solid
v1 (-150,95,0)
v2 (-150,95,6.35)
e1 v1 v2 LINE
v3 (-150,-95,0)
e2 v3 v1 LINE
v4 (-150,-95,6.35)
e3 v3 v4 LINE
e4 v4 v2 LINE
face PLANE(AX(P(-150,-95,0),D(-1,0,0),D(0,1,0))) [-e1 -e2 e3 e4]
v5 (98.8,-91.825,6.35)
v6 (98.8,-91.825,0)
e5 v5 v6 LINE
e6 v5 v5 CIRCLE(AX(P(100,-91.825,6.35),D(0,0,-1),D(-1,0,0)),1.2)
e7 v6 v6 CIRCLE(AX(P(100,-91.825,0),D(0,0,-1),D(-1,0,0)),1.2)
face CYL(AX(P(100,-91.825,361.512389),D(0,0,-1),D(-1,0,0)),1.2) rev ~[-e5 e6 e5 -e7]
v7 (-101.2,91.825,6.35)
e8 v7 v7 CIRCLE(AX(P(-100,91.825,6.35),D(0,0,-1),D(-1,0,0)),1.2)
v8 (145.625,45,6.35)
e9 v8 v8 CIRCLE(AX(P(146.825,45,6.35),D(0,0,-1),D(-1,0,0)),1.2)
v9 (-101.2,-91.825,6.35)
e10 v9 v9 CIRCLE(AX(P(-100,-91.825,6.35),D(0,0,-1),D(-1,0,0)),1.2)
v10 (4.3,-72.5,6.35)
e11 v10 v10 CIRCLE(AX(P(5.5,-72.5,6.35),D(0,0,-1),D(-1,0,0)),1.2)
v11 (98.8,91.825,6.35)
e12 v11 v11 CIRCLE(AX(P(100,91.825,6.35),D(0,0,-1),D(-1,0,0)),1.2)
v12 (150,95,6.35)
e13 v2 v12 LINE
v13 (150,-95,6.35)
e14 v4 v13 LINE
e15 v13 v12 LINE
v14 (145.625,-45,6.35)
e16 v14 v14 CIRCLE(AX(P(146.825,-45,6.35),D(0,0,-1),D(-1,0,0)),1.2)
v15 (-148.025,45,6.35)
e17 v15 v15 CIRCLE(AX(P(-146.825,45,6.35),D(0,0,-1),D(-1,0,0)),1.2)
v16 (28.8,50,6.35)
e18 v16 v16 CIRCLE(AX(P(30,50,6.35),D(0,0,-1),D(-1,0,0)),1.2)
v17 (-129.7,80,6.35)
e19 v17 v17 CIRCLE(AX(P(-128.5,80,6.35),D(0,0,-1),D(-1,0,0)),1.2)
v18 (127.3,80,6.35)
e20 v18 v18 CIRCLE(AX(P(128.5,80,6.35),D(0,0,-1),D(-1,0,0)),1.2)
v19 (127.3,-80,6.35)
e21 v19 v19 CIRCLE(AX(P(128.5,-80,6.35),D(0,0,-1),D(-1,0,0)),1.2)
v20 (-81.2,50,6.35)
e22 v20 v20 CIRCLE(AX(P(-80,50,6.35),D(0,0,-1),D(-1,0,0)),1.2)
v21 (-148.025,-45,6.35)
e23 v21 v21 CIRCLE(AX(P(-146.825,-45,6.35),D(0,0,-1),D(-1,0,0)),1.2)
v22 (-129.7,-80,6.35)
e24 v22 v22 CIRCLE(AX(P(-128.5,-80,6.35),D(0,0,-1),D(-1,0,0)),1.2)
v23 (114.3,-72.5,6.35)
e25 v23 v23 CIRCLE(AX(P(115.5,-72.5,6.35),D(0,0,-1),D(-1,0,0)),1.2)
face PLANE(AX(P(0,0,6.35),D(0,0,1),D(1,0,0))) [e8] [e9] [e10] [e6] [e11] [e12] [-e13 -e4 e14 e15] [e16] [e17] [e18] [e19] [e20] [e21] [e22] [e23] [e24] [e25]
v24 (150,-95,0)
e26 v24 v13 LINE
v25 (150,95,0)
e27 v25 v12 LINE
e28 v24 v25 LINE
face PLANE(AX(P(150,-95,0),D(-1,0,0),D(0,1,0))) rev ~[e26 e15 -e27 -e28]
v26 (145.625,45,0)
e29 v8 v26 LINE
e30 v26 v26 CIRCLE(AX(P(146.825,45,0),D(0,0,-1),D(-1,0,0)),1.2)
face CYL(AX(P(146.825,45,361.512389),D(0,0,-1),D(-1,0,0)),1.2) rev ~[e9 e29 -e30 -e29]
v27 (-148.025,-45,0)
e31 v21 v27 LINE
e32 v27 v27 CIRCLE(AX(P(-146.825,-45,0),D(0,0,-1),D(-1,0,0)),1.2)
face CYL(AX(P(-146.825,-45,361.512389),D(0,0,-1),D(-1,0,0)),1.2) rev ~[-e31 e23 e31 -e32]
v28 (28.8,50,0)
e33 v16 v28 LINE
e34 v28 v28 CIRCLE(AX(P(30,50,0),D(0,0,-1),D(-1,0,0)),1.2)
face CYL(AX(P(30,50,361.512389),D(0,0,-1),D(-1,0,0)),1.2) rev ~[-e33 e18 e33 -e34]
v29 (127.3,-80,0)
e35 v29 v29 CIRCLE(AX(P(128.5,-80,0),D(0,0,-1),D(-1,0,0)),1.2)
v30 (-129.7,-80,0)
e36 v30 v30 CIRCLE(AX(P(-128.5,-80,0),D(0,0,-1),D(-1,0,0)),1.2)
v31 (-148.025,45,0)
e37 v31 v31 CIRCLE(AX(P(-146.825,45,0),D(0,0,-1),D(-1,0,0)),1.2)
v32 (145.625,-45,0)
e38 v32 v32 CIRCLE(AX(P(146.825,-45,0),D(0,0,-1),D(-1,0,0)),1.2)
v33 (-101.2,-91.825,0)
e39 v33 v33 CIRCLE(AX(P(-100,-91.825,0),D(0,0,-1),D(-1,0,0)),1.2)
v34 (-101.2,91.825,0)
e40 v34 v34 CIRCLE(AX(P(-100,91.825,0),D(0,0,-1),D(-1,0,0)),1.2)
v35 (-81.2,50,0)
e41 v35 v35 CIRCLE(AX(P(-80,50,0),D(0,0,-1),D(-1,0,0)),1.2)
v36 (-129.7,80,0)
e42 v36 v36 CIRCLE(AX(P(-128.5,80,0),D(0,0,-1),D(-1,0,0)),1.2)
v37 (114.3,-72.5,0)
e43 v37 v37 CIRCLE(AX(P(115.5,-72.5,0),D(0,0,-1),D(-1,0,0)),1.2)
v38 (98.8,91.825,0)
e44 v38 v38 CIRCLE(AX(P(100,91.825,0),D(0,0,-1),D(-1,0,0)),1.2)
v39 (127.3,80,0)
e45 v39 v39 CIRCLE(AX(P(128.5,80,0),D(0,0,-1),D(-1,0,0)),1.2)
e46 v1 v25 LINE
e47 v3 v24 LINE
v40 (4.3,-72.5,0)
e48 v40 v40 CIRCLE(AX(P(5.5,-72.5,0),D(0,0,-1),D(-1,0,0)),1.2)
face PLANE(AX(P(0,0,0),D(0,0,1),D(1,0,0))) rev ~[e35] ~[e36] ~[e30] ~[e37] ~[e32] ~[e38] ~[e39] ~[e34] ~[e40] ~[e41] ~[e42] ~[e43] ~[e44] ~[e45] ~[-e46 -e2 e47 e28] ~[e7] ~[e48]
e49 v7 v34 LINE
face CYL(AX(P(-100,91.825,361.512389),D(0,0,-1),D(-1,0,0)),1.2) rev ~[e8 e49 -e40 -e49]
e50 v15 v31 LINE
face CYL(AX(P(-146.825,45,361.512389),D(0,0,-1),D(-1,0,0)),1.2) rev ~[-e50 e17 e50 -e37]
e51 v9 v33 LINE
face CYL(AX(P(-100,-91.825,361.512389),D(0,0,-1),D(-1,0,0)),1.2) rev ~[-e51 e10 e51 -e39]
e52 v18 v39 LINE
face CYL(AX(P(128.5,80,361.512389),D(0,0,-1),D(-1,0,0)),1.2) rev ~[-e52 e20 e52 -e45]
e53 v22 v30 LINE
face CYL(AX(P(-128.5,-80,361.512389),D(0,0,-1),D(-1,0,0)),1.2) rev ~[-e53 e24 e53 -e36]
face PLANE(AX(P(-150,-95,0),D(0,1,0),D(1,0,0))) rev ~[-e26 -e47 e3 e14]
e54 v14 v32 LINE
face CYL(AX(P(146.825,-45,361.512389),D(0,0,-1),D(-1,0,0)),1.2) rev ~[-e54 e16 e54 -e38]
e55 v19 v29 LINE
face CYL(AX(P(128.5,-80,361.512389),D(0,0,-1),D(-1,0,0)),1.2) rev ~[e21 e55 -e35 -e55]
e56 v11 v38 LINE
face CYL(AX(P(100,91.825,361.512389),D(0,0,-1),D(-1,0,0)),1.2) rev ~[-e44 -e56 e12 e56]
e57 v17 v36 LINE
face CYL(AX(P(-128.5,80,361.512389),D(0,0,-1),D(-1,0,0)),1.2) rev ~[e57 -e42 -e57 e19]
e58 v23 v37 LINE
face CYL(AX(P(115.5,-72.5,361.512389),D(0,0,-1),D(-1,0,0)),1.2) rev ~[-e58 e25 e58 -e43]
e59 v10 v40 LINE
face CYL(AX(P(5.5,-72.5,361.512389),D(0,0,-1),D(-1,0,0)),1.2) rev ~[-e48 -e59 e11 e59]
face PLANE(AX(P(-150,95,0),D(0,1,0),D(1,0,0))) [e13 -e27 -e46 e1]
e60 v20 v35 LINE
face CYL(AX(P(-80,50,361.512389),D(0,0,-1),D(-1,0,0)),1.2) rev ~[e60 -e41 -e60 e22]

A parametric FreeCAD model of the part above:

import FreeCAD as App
import Part
import Sketcher
from FreeCAD import Vector
Q = App.Units.Quantity

doc = App.newDocument("Part")
params = doc.addObject("Spreadsheet::Sheet", "Params")
for row, (alias, value) in enumerate([
    ("sketch1_width", "300 mm"),
    ("sketch1_height", "190 mm"),
    ("pad1_length", "6.35 mm"),
    ("sketch2_diameter", "2.4 mm"),
    ("hole_diameter", "2.4 mm"),
], start=1):
    params.set(f"A{row}", alias)
    params.set(f"B{row}", "=" + value)
    params.setAlias(f"B{row}", alias)

body = doc.addObject("PartDesign::Body", "Body")

# Sketch on XY plane
sketch1 = doc.addObject("Sketcher::SketchObject", "Sketch")
body.addObject(sketch1)
sketch1.AttachmentSupport = (doc.XY_Plane, [""])
sketch1.MapMode = "FlatFace"
sketch1.addGeometry([
    Part.LineSegment(Vector(-150, 95, 0), Vector(-150, -95, 0)),
    Part.LineSegment(Vector(-150, -95, 0), Vector(150, -95, 0)),
    Part.LineSegment(Vector(150, -95, 0), Vector(150, 95, 0)),
    Part.LineSegment(Vector(150, 95, 0), Vector(-150, 95, 0)),
], False)
sketch1.addConstraint([
    Sketcher.Constraint("Coincident", 0, 2, 1, 1),
    Sketcher.Constraint("Coincident", 1, 2, 2, 1),
    Sketcher.Constraint("Coincident", 2, 2, 3, 1),
    Sketcher.Constraint("Coincident", 3, 2, 0, 1),
    Sketcher.Constraint("Vertical", 0),
    Sketcher.Constraint("Horizontal", 1),
    Sketcher.Constraint("Vertical", 2),
    Sketcher.Constraint("Horizontal", 3),
    Sketcher.Constraint("Symmetric", 0, 2, 2, 2, -1, 1),
    Sketcher.Constraint("DistanceX", 1, 1, 1, 2, Q("300 mm")),
    Sketcher.Constraint("DistanceY", 0, 2, 0, 1, Q("190 mm")),
])
sketch1.setExpression("Constraints[9]", "Params.sketch1_width")
sketch1.setExpression("Constraints[10]", "Params.sketch1_height")
pad1 = doc.addObject("PartDesign::Pad", "Pad")
body.addObject(pad1)
pad1.Profile = sketch1
pad1.setExpression("Length", "Params.pad1_length")

# Sketch on XY plane
sketch2 = doc.addObject("Sketcher::SketchObject", "Sketch001")
body.addObject(sketch2)
sketch2.AttachmentSupport = (doc.XY_Plane, [""])
sketch2.MapMode = "FlatFace"
sketch2.AttachmentOffset = App.Placement(Vector(0, 0, 6.35), App.Rotation())
sketch2.addGeometry([
    Part.Circle(Vector(-128.5, 80, 0), Vector(0, 0, 1), 1.2),  # 0
    Part.Circle(Vector(-80, 50, 0), Vector(0, 0, 1), 1.2),  # 1
    Part.Circle(Vector(-128.5, -80, 0), Vector(0, 0, 1), 1.2),  # 2
    Part.Circle(Vector(5.5, -72.5, 0), Vector(0, 0, 1), 1.2),  # 3
    Part.Circle(Vector(30, 50, 0), Vector(0, 0, 1), 1.2),  # 4
    Part.Circle(Vector(115.5, -72.5, 0), Vector(0, 0, 1), 1.2),  # 5
    Part.Circle(Vector(128.5, -80, 0), Vector(0, 0, 1), 1.2),  # 6
    Part.Circle(Vector(128.5, 80, 0), Vector(0, 0, 1), 1.2),  # 7
    Part.Circle(Vector(-100, 91.825, 0), Vector(0, 0, 1), 1.2),  # 8
    Part.Circle(Vector(-146.825, 45, 0), Vector(0, 0, 1), 1.2),  # 9
    Part.Circle(Vector(-146.825, -45, 0), Vector(0, 0, 1), 1.2),  # 10
    Part.Circle(Vector(-100, -91.825, 0), Vector(0, 0, 1), 1.2),  # 11
    Part.Circle(Vector(100, -91.825, 0), Vector(0, 0, 1), 1.2),  # 12
    Part.Circle(Vector(146.825, -45, 0), Vector(0, 0, 1), 1.2),  # 13
    Part.Circle(Vector(146.825, 45, 0), Vector(0, 0, 1), 1.2),  # 14
    Part.Circle(Vector(100, 91.825, 0), Vector(0, 0, 1), 1.2),  # 15
], False)
sketch2.addConstraint([
    Sketcher.Constraint("Equal", 0, 1),
    Sketcher.Constraint("Equal", 1, 2),
    Sketcher.Constraint("Equal", 2, 3),
    Sketcher.Constraint("Equal", 3, 4),
    Sketcher.Constraint("Equal", 4, 5),
    Sketcher.Constraint("Equal", 5, 6),
    Sketcher.Constraint("Equal", 6, 7),
    Sketcher.Constraint("Equal", 7, 8),
    Sketcher.Constraint("Equal", 8, 9),
    Sketcher.Constraint("Equal", 9, 10),
    Sketcher.Constraint("Equal", 10, 11),
    Sketcher.Constraint("Equal", 11, 12),
    Sketcher.Constraint("Equal", 12, 13),
    Sketcher.Constraint("Equal", 13, 14),
    Sketcher.Constraint("Equal", 14, 15),
    Sketcher.Constraint("Symmetric", 0, 3, 6, 3, -1, 1),
    Sketcher.Constraint("Symmetric", 2, 3, 7, 3, -1, 1),
    Sketcher.Constraint("Symmetric", 8, 3, 12, 3, -1, 1),
    Sketcher.Constraint("Symmetric", 9, 3, 13, 3, -1, 1),
    Sketcher.Constraint("Symmetric", 10, 3, 14, 3, -1, 1),
    Sketcher.Constraint("Symmetric", 11, 3, 15, 3, -1, 1),
    Sketcher.Constraint("Symmetric", 2, 3, 6, 3, -2),
    Sketcher.Constraint("Symmetric", 11, 3, 12, 3, -2),
    Sketcher.Constraint("Symmetric", 10, 3, 13, 3, -2),
    Sketcher.Constraint("Horizontal", 1, 3, 4, 3),
    Sketcher.Constraint("Horizontal", 3, 3, 5, 3),
    Sketcher.Constraint("Diameter", 0, Q("2.4 mm")),
    Sketcher.Constraint("DistanceY", -1, 1, 0, 3, Q("80 mm")),
    Sketcher.Constraint("DistanceX", 1, 3, -1, 1, Q("80 mm")),
    Sketcher.Constraint("DistanceY", -1, 1, 1, 3, Q("50 mm")),
    Sketcher.Constraint("DistanceX", -1, 1, 4, 3, Q("30 mm")),
    Sketcher.Constraint("DistanceX", 8, 3, -1, 1, Q("100 mm")),
    Sketcher.Constraint("DistanceY", -1, 1, 9, 3, Q("45 mm")),
    Sketcher.Constraint("DistanceX", 2, 3, 3, 3, Q("134 mm")),
    Sketcher.Constraint("DistanceX", 3, 3, 5, 3, Q("110 mm")),
    Sketcher.Constraint("DistanceX", 5, 3, 6, 3, Q("13 mm")),
    Sketcher.Constraint("DistanceY", 3, 3, -1, 1, Q("72.5 mm")),
    Sketcher.Constraint("DistanceY", -1, 1, 8, 3, Q("91.825 mm")),
    Sketcher.Constraint("DistanceX", 9, 3, -1, 1, Q("146.825 mm")),
])
sketch2.setExpression("Constraints[26]", "Params.sketch2_diameter")
doc.recompute()
hole = doc.addObject("PartDesign::Hole", "Hole")
body.addObject(hole)
hole.Profile = sketch2
hole.ThreadType = "None"
hole.setExpression("Diameter", "Params.hole_diameter")
hole.DepthType = "ThroughAll"

doc.recompute()
